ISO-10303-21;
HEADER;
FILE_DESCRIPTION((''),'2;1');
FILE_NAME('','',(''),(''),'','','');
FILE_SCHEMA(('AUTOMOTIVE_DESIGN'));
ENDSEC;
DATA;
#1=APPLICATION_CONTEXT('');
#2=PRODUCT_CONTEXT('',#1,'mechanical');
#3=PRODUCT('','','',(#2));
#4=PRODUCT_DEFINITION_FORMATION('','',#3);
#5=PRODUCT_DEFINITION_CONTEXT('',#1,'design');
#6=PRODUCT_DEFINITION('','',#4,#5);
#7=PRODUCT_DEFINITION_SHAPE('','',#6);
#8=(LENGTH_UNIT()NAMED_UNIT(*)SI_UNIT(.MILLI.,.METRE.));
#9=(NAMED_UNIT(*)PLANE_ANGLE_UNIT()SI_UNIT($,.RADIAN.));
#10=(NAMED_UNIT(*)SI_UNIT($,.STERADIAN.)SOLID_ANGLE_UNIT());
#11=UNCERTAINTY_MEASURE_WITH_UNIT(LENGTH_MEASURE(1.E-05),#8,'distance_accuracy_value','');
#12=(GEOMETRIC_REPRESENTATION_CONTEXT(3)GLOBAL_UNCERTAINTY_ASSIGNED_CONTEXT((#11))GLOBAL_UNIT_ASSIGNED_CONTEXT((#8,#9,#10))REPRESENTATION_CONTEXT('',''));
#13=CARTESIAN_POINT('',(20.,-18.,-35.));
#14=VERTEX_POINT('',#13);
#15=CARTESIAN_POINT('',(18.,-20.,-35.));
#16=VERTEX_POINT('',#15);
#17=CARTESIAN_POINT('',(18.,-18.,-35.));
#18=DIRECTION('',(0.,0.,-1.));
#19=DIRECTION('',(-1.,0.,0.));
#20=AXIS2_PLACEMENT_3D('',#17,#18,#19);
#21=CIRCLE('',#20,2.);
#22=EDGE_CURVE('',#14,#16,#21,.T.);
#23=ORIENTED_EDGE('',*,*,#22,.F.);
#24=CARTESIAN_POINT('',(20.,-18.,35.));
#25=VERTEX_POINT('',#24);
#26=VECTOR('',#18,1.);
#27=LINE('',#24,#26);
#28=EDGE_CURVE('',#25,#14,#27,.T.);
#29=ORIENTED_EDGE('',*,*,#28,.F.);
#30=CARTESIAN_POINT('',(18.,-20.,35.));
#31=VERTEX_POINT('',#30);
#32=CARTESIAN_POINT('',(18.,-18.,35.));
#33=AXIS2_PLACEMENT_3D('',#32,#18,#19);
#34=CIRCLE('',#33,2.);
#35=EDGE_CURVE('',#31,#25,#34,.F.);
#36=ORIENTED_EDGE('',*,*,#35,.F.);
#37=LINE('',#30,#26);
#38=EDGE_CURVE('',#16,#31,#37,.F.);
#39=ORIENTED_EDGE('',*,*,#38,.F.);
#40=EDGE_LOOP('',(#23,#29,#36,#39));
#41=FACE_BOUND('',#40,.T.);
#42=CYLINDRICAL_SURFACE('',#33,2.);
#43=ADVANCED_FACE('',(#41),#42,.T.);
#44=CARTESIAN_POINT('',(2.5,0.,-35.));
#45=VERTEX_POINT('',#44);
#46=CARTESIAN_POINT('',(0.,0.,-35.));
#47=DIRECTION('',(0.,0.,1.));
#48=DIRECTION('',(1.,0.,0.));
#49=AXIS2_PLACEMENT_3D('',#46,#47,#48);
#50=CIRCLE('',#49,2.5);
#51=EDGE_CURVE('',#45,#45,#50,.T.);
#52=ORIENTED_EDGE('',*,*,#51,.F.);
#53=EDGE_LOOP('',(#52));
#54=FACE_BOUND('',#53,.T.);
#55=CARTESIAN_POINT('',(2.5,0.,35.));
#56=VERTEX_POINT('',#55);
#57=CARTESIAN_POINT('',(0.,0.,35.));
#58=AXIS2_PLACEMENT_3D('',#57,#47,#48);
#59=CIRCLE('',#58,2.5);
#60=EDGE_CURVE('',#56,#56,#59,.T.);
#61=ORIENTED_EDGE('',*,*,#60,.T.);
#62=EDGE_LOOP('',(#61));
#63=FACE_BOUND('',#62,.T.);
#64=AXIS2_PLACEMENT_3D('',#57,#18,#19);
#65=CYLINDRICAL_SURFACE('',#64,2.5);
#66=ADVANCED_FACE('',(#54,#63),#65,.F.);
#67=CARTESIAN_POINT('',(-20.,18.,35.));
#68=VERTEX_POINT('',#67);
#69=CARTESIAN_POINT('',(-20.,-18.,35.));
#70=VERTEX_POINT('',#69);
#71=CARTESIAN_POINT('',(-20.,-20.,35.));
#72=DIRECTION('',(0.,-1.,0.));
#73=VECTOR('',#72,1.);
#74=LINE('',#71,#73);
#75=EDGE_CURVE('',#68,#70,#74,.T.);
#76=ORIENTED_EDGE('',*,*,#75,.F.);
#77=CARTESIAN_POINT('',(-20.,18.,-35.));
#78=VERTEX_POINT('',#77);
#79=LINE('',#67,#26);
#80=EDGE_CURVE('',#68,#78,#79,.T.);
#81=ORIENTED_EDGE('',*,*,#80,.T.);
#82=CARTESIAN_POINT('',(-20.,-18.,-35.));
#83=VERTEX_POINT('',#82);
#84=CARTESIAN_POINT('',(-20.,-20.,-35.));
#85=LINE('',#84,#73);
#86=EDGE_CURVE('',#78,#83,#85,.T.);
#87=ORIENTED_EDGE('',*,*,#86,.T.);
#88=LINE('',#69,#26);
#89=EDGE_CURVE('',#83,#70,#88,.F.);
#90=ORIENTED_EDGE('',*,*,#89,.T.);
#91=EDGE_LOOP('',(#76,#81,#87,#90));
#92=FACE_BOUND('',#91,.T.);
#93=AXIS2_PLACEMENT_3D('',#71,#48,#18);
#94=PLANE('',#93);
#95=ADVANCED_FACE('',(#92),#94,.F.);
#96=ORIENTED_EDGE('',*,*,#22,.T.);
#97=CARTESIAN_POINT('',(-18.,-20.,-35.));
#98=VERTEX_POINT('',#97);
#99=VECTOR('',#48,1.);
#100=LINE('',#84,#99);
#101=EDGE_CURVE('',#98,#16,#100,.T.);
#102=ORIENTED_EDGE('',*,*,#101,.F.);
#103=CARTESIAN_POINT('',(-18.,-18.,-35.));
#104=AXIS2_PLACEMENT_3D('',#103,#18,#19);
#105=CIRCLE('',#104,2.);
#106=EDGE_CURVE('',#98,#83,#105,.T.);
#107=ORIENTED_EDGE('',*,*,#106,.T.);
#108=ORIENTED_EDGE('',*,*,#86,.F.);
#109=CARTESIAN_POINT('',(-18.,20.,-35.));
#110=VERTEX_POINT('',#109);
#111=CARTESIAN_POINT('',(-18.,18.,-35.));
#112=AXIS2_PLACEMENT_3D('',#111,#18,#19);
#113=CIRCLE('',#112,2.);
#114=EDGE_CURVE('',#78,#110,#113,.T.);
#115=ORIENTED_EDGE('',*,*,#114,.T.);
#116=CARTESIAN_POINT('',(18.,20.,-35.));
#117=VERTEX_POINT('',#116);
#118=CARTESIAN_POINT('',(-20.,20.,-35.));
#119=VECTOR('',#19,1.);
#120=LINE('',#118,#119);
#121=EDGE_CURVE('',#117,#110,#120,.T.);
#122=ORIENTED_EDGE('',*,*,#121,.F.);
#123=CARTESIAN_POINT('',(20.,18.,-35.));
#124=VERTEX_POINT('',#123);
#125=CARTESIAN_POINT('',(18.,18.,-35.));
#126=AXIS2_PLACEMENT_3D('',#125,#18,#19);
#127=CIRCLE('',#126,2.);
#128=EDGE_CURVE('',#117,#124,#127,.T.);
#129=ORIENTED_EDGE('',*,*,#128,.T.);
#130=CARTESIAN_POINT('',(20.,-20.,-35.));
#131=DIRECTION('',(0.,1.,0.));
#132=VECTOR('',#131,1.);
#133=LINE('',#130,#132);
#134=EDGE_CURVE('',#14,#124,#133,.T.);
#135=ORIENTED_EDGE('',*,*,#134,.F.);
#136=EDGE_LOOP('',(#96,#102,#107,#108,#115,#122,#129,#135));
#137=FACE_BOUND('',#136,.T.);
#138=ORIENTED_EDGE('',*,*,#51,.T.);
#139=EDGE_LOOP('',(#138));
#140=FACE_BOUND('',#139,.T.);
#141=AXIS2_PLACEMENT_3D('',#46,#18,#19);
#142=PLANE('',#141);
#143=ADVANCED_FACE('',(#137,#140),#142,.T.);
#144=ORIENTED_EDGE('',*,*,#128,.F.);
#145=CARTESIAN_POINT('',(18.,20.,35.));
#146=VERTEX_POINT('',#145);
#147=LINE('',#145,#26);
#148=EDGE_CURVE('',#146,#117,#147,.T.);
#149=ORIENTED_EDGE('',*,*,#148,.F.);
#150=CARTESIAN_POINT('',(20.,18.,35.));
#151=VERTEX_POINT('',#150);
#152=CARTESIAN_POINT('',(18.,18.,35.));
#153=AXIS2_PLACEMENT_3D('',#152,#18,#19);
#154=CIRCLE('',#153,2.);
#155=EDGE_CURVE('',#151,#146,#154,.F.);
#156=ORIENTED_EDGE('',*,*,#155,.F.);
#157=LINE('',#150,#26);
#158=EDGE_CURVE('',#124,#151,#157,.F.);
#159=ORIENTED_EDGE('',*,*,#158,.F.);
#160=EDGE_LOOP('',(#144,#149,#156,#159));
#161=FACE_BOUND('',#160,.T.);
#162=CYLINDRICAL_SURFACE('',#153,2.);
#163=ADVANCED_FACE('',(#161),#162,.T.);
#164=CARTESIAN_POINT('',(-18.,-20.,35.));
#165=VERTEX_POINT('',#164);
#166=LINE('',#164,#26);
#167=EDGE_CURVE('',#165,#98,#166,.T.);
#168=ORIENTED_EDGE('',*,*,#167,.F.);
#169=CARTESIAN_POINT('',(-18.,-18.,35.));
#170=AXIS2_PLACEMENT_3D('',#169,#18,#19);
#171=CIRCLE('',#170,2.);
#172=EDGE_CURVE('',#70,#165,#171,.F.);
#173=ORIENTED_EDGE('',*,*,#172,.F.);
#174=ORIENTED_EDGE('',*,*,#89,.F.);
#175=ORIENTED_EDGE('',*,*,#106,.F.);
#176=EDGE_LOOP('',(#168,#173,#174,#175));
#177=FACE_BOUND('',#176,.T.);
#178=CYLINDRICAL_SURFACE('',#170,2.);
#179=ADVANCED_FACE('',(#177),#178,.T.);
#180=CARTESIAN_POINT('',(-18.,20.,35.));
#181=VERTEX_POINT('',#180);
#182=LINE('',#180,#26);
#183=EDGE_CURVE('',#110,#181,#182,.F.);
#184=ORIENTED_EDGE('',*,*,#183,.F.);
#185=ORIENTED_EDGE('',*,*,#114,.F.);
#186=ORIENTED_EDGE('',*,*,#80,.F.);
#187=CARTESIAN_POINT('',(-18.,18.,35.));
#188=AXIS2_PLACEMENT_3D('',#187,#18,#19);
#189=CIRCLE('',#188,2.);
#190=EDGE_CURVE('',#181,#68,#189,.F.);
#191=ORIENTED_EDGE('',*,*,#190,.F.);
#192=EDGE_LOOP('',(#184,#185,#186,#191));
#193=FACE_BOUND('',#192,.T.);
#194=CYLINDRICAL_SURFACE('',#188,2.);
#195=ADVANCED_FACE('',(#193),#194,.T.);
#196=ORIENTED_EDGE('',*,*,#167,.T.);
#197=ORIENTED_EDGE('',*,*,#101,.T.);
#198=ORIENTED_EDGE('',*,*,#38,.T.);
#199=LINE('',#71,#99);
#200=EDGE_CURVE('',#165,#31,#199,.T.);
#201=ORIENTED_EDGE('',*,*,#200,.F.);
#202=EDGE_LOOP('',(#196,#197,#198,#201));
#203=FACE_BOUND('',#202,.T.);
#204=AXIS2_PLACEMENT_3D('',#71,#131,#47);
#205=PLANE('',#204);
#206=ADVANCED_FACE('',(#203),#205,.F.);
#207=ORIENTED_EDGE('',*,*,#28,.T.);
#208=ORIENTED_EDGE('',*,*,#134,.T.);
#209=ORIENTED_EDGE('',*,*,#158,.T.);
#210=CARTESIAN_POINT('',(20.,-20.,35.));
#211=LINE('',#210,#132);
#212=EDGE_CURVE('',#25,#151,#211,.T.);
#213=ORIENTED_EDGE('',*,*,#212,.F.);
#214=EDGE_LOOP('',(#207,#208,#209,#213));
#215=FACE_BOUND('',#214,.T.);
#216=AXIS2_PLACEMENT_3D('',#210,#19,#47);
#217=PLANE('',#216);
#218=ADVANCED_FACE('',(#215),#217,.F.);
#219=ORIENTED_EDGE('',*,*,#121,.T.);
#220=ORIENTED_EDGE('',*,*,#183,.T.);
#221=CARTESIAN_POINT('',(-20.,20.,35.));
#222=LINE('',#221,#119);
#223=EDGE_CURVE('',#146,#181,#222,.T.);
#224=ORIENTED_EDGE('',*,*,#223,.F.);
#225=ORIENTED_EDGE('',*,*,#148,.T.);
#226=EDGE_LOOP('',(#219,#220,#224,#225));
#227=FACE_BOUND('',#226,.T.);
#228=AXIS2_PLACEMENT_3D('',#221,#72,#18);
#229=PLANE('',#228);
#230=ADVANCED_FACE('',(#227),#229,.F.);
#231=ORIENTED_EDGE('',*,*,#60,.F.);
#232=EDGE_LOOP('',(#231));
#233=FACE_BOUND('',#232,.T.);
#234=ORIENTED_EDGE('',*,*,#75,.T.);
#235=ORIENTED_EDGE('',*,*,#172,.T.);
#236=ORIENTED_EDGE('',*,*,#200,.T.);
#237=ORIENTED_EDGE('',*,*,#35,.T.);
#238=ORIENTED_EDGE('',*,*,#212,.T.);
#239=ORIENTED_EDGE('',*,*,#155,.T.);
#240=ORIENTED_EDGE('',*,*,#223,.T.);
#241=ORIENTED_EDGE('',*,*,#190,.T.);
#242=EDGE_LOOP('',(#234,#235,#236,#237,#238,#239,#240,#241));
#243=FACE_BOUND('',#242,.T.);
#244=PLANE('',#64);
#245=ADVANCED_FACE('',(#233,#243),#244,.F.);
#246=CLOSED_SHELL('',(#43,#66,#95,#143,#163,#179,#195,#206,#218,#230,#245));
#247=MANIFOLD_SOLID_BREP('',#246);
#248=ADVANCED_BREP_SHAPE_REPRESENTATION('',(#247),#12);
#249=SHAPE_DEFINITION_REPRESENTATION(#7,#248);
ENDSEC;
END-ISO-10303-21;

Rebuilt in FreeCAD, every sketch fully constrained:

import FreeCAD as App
import Part
import Sketcher
from FreeCAD import Vector
Q = App.Units.Quantity


def edges_at(feature, points):
    """Names of the edges that pass closest to the given points."""
    edges = feature.Shape.Edges
    near = lambda p: min(range(len(edges)), key=lambda i: edges[i].distToShape(Part.Vertex(*p))[0])
    return sorted({f"Edge{near(p) + 1}" for p in points})

doc = App.newDocument("Part")
body = doc.addObject("PartDesign::Body", "Body")

# Sketch on XY plane
sketch1 = body.newObject("Sketcher::SketchObject", "Sketch")
sketch1.AttachmentSupport = (doc.getObject("XY_Plane"), [""])
sketch1.MapMode = "FlatFace"
sketch1.addGeometry([
    Part.LineSegment(Vector(-20, 20, 0), Vector(-20, -20, 0)),  # 0
    Part.LineSegment(Vector(-20, -20, 0), Vector(20, -20, 0)),  # 1
    Part.LineSegment(Vector(20, -20, 0), Vector(20, 20, 0)),  # 2
    Part.LineSegment(Vector(20, 20, 0), Vector(-20, 20, 0)),  # 3
    Part.Circle(Vector(0, 0, 0), Vector(0, 0, 1), 2.5),  # 4
], False)
sketch1.addConstraint([
    Sketcher.Constraint("Coincident", 0, 2, 1, 1),
    Sketcher.Constraint("Coincident", 1, 2, 2, 1),
    Sketcher.Constraint("Coincident", 2, 2, 3, 1),
    Sketcher.Constraint("Coincident", 3, 2, 0, 1),
    Sketcher.Constraint("Vertical", 0),
    Sketcher.Constraint("Horizontal", 1),
    Sketcher.Constraint("Vertical", 2),
    Sketcher.Constraint("Horizontal", 3),
    Sketcher.Constraint("Coincident", 4, 3, -1, 1),
    Sketcher.Constraint("Symmetric", 0, 2, 2, 2, -1, 1),
    Sketcher.Constraint("Equal", 3, 0),
    Sketcher.Constraint("Diameter", 4, Q("5 mm")),
    Sketcher.Constraint("DistanceX", 1, 1, 1, 2, Q("40 mm")),
])
pad1 = body.newObject("PartDesign::Pad", "Pad")
pad1.Profile = sketch1
pad1.Length = 70
pad1.Midplane = True
doc.recompute()

fillet = body.newObject("PartDesign::Fillet", "Fillet")
fillet.Base = (pad1, edges_at(pad1, [
    (20, -20, 0),
    (-20, -20, 0),
    (-20, 20, 0),
    (20, 20, 0),
]))
fillet.Radius = 2

doc.recompute()
